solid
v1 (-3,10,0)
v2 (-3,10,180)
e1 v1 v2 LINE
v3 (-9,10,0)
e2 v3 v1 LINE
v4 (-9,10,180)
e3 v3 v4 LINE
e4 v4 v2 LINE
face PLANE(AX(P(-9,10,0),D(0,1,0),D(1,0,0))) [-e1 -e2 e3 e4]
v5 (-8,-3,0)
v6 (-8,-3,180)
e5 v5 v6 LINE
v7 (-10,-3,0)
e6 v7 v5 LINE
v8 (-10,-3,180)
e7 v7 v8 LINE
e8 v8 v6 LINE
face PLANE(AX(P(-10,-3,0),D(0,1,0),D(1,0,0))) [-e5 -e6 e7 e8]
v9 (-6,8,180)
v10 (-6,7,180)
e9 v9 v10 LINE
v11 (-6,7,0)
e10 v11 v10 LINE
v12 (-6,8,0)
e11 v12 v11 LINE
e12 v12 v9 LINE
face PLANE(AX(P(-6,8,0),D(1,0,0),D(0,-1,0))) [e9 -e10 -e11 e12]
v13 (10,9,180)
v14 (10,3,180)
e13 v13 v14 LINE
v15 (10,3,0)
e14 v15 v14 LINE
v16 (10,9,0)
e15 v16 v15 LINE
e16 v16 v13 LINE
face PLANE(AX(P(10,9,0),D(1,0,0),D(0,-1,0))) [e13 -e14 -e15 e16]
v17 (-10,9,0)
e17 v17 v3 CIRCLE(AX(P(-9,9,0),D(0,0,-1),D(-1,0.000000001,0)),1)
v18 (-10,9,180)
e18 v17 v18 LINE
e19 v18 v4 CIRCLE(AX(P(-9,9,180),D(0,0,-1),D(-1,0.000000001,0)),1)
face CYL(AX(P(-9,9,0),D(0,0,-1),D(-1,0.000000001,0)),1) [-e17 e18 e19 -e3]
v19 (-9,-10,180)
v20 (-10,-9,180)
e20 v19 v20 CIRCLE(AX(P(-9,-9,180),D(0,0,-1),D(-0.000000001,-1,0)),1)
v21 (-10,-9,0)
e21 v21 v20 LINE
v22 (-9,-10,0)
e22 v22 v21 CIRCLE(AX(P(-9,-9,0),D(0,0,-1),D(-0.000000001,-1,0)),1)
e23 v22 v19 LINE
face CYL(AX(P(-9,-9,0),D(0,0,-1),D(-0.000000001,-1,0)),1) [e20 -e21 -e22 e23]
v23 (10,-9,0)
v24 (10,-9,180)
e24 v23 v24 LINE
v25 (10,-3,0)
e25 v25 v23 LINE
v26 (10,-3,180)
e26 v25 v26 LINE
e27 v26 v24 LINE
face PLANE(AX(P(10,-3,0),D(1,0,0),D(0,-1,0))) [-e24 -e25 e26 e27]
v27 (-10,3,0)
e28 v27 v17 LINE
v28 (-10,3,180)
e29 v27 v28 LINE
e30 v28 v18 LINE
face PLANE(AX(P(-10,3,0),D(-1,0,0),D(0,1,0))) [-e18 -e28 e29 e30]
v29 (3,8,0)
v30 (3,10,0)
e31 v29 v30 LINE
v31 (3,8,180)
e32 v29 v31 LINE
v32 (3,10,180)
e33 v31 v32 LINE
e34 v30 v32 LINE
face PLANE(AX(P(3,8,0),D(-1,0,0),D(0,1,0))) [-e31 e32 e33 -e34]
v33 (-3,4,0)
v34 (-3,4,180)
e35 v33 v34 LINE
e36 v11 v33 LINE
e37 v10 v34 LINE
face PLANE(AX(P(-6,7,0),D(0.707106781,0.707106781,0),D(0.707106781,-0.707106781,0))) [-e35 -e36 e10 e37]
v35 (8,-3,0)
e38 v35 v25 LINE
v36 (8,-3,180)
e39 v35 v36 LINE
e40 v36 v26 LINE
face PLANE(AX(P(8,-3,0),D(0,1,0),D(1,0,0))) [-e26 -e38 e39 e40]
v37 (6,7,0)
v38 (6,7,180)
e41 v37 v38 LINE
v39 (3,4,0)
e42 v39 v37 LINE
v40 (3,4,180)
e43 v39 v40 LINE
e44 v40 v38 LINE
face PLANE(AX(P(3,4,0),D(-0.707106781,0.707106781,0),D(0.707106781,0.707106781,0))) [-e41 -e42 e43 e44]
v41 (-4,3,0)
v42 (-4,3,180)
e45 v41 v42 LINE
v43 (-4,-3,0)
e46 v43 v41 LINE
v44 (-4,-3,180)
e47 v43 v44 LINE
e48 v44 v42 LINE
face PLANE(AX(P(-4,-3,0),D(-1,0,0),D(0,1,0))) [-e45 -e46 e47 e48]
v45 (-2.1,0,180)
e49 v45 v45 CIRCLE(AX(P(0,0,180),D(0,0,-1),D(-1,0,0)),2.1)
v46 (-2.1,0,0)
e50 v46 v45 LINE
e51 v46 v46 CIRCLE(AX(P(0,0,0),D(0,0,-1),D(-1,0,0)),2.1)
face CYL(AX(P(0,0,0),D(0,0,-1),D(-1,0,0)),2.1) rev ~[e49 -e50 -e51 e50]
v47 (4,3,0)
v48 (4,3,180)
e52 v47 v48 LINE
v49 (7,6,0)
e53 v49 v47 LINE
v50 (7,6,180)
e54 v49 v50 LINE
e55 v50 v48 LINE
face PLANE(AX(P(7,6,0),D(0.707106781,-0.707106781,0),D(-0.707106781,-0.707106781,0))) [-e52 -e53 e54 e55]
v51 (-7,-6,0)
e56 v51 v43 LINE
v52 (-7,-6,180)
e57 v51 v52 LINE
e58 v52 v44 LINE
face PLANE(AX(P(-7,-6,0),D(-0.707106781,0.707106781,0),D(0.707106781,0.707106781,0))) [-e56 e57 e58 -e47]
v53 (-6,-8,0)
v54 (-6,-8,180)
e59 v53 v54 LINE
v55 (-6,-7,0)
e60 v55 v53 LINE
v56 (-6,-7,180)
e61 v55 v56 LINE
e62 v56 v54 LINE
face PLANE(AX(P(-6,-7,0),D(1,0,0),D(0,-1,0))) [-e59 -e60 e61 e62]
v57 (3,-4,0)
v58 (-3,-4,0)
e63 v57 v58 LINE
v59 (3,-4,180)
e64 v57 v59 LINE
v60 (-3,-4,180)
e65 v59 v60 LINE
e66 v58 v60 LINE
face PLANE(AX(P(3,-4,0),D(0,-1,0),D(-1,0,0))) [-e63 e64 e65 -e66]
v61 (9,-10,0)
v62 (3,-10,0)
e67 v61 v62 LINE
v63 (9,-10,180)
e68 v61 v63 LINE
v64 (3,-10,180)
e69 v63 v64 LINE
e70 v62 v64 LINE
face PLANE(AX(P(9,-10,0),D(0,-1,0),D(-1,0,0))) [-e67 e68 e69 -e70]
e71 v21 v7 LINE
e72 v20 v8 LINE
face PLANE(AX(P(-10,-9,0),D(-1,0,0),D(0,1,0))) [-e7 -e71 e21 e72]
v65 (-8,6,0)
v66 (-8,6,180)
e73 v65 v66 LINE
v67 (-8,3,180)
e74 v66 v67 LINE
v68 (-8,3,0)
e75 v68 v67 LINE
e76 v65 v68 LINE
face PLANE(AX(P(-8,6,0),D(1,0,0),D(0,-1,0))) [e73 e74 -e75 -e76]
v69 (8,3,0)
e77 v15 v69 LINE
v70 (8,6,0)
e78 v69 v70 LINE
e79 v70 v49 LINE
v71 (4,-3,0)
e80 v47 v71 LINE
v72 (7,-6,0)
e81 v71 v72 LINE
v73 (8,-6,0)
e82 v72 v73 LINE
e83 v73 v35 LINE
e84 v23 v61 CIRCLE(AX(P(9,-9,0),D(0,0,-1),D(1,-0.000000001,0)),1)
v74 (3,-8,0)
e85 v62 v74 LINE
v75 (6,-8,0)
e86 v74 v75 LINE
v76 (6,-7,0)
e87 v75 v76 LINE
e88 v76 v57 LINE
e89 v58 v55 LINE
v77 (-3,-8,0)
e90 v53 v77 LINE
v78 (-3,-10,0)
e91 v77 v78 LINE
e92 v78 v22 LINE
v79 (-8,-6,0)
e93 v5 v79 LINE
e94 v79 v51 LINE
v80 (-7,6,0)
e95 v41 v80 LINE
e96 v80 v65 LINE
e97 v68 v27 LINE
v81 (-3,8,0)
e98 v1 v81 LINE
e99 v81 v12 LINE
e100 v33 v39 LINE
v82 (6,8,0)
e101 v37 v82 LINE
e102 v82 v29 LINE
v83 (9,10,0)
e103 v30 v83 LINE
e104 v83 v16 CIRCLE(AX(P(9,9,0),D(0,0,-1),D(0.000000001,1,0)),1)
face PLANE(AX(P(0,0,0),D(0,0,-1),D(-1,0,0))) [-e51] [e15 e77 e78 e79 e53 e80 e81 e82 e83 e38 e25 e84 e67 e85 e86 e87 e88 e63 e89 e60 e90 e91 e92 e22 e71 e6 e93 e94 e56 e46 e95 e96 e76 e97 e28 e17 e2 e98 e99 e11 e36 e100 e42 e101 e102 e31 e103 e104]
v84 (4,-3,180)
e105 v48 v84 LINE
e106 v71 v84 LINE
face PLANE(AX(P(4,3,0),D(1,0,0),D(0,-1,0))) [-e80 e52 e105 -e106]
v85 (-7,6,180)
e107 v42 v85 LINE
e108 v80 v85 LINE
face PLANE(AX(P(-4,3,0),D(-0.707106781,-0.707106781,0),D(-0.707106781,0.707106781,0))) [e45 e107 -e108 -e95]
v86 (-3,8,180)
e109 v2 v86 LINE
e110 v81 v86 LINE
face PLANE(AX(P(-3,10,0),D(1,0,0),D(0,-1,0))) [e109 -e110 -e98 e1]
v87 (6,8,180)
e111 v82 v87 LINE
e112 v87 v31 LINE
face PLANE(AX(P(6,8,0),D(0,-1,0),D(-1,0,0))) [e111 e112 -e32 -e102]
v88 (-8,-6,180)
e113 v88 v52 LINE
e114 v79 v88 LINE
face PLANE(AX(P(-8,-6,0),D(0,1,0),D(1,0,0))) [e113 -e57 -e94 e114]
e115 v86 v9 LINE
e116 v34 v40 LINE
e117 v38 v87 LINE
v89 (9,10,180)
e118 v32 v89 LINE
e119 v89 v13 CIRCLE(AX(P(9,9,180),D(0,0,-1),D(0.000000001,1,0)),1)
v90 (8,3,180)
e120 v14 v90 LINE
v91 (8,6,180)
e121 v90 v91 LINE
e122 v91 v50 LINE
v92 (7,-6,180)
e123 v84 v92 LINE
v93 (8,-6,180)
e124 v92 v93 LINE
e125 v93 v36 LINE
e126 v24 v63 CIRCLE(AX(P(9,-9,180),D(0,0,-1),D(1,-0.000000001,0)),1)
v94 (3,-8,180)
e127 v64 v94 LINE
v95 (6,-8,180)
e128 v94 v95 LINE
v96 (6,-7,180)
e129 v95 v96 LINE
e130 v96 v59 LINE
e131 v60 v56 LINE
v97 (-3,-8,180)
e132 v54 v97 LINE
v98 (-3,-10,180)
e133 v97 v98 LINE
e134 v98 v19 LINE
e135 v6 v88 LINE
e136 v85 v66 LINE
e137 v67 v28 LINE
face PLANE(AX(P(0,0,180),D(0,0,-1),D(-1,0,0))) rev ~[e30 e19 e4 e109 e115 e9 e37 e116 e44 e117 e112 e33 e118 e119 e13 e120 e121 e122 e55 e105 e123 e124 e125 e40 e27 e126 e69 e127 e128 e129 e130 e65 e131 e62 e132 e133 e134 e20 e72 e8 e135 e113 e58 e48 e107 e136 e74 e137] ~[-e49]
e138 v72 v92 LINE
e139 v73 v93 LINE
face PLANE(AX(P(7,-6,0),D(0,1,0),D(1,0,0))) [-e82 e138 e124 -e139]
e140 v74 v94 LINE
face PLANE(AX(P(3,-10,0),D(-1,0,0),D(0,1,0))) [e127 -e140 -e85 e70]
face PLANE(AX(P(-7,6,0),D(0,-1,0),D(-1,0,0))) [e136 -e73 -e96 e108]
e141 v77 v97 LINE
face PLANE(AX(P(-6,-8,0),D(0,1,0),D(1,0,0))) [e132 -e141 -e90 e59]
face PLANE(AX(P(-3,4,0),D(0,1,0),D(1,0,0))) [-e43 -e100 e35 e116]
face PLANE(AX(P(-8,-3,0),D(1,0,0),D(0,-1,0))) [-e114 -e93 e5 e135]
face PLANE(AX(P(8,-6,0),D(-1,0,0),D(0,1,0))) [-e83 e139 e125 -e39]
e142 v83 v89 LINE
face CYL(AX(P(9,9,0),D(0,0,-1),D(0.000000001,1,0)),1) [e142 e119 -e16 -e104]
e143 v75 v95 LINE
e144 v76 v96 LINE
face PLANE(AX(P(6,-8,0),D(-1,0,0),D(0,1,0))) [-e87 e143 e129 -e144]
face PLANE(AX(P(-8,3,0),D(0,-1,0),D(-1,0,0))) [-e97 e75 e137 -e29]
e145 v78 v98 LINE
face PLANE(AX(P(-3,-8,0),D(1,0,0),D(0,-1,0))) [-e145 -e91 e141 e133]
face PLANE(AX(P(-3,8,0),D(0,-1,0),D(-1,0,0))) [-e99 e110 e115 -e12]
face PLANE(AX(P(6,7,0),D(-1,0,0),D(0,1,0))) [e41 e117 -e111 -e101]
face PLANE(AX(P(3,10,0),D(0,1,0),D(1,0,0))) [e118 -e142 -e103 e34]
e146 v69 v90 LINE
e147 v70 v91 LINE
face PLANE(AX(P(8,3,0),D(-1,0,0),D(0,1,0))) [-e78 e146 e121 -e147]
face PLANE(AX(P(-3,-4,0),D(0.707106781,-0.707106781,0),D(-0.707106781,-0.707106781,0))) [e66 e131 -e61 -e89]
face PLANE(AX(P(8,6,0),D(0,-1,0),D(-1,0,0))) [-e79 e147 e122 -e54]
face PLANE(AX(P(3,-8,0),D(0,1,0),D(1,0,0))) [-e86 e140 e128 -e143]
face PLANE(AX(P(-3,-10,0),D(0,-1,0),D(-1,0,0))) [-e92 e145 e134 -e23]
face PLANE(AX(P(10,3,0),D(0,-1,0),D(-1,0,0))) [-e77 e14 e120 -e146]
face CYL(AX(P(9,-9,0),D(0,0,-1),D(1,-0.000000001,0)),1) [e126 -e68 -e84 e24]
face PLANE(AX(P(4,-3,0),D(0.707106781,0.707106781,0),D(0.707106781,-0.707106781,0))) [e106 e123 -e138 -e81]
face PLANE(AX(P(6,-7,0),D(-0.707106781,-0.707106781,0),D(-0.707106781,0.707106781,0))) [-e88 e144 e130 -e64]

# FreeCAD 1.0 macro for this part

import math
import FreeCAD as App
import Part
import Sketcher

V = App.Vector
Q = App.Units.Quantity

doc = App.newDocument("Part")
body = doc.addObject("PartDesign::Body", "Body")

# Sketch on XY plane
sketch1 = body.newObject("Sketcher::SketchObject", "Sketch")
sketch1.AttachmentSupport = (doc.getObject("XY_Plane"), [""])
sketch1.MapMode = "FlatFace"
sketch1.addGeometry(Part.LineSegment(V(-6, -8, 0), V(-3, -8, 0)), False)
sketch1.addGeometry(Part.LineSegment(V(-3, -8, 0), V(-3, -10, 0)), False)
sketch1.addGeometry(Part.LineSegment(V(-3, -10, 0), V(-9, -10, 0)), False)
sketch1.addGeometry(Part.ArcOfCircle(Part.Circle(V(-9, -9, 0), V(0, 0, 1), 1), math.radians(-180), math.radians(-90)), False)
sketch1.addGeometry(Part.LineSegment(V(-10, -9, 0), V(-10, -3, 0)), False)
sketch1.addGeometry(Part.LineSegment(V(-10, -3, 0), V(-8, -3, 0)), False)
sketch1.addGeometry(Part.LineSegment(V(-8, -3, 0), V(-8, -6, 0)), False)
sketch1.addGeometry(Part.LineSegment(V(-8, -6, 0), V(-7, -6, 0)), False)
sketch1.addGeometry(Part.LineSegment(V(-7, -6, 0), V(-4, -3, 0)), False)
sketch1.addGeometry(Part.LineSegment(V(-4, -3, 0), V(-4, 3, 0)), False)
sketch1.addGeometry(Part.LineSegment(V(-4, 3, 0), V(-7, 6, 0)), False)
sketch1.addGeometry(Part.LineSegment(V(-7, 6, 0), V(-8, 6, 0)), False)
sketch1.addGeometry(Part.LineSegment(V(-8, 6, 0), V(-8, 3, 0)), False)
sketch1.addGeometry(Part.LineSegment(V(-8, 3, 0), V(-10, 3, 0)), False)
sketch1.addGeometry(Part.LineSegment(V(-10, 3, 0), V(-10, 9, 0)), False)
sketch1.addGeometry(Part.ArcOfCircle(Part.Circle(V(-9, 9, 0), V(0, 0, 1), 1), math.radians(90), math.radians(180)), False)
sketch1.addGeometry(Part.LineSegment(V(-9, 10, 0), V(-3, 10, 0)), False)
sketch1.addGeometry(Part.LineSegment(V(-3, 10, 0), V(-3, 8, 0)), False)
sketch1.addGeometry(Part.LineSegment(V(-3, 8, 0), V(-6, 8, 0)), False)
sketch1.addGeometry(Part.LineSegment(V(-6, 8, 0), V(-6, 7, 0)), False)
sketch1.addGeometry(Part.LineSegment(V(-6, 7, 0), V(-3, 4, 0)), False)
sketch1.addGeometry(Part.LineSegment(V(-3, 4, 0), V(3, 4, 0)), False)
sketch1.addGeometry(Part.LineSegment(V(3, 4, 0), V(6, 7, 0)), False)
sketch1.addGeometry(Part.LineSegment(V(6, 7, 0), V(6, 8, 0)), False)
sketch1.addGeometry(Part.LineSegment(V(6, 8, 0), V(3, 8, 0)), False)
sketch1.addGeometry(Part.LineSegment(V(3, 8, 0), V(3, 10, 0)), False)
sketch1.addGeometry(Part.LineSegment(V(3, 10, 0), V(9, 10, 0)), False)
sketch1.addGeometry(Part.ArcOfCircle(Part.Circle(V(9, 9, 0), V(0, 0, 1), 1), math.radians(0), math.radians(90)), False)
sketch1.addGeometry(Part.LineSegment(V(10, 9, 0), V(10, 3, 0)), False)
sketch1.addGeometry(Part.LineSegment(V(10, 3, 0), V(8, 3, 0)), False)
sketch1.addGeometry(Part.LineSegment(V(8, 3, 0), V(8, 6, 0)), False)
sketch1.addGeometry(Part.LineSegment(V(8, 6, 0), V(7, 6, 0)), False)
sketch1.addGeometry(Part.LineSegment(V(7, 6, 0), V(4, 3, 0)), False)
sketch1.addGeometry(Part.LineSegment(V(4, 3, 0), V(4, -3, 0)), False)
sketch1.addGeometry(Part.LineSegment(V(4, -3, 0), V(7, -6, 0)), False)
sketch1.addGeometry(Part.LineSegment(V(7, -6, 0), V(8, -6, 0)), False)
sketch1.addGeometry(Part.LineSegment(V(8, -6, 0), V(8, -3, 0)), False)
sketch1.addGeometry(Part.LineSegment(V(8, -3, 0), V(10, -3, 0)), False)
sketch1.addGeometry(Part.LineSegment(V(10, -3, 0), V(10, -9, 0)), False)
sketch1.addGeometry(Part.ArcOfCircle(Part.Circle(V(9, -9, 0), V(0, 0, 1), 1), math.radians(-90), math.radians(0)), False)
sketch1.addGeometry(Part.LineSegment(V(9, -10, 0), V(3, -10, 0)), False)
sketch1.addGeometry(Part.LineSegment(V(3, -10, 0), V(3, -8, 0)), False)
sketch1.addGeometry(Part.LineSegment(V(3, -8, 0), V(6, -8, 0)), False)
sketch1.addGeometry(Part.LineSegment(V(6, -8, 0), V(6, -7, 0)), False)
sketch1.addGeometry(Part.LineSegment(V(6, -7, 0), V(3, -4, 0)), False)
sketch1.addGeometry(Part.LineSegment(V(3, -4, 0), V(-3, -4, 0)), False)
sketch1.addGeometry(Part.LineSegment(V(-3, -4, 0), V(-6, -7, 0)), False)
sketch1.addGeometry(Part.LineSegment(V(-6, -7, 0), V(-6, -8, 0)), False)
sketch1.addGeometry(Part.Circle(V(0, 0, 0), V(0, 0, 1), 2.1), False)
sketch1.addConstraint(Sketcher.Constraint("Coincident", 0, 2, 1, 1))
sketch1.addConstraint(Sketcher.Constraint("Coincident", 1, 2, 2, 1))
sketch1.addConstraint(Sketcher.Constraint("Tangent", 2, 2, 3, 2))
sketch1.addConstraint(Sketcher.Constraint("Tangent", 3, 1, 4, 1))
sketch1.addConstraint(Sketcher.Constraint("Coincident", 4, 2, 5, 1))
sketch1.addConstraint(Sketcher.Constraint("Coincident", 5, 2, 6, 1))
sketch1.addConstraint(Sketcher.Constraint("Coincident", 6, 2, 7, 1))
sketch1.addConstraint(Sketcher.Constraint("Coincident", 7, 2, 8, 1))
sketch1.addConstraint(Sketcher.Constraint("Coincident", 8, 2, 9, 1))
sketch1.addConstraint(Sketcher.Constraint("Coincident", 9, 2, 10, 1))
sketch1.addConstraint(Sketcher.Constraint("Coincident", 10, 2, 11, 1))
sketch1.addConstraint(Sketcher.Constraint("Coincident", 11, 2, 12, 1))
sketch1.addConstraint(Sketcher.Constraint("Coincident", 12, 2, 13, 1))
sketch1.addConstraint(Sketcher.Constraint("Coincident", 13, 2, 14, 1))
sketch1.addConstraint(Sketcher.Constraint("Tangent", 14, 2, 15, 2))
sketch1.addConstraint(Sketcher.Constraint("Tangent", 15, 1, 16, 1))
sketch1.addConstraint(Sketcher.Constraint("Coincident", 16, 2, 17, 1))
sketch1.addConstraint(Sketcher.Constraint("Coincident", 17, 2, 18, 1))
sketch1.addConstraint(Sketcher.Constraint("Coincident", 18, 2, 19, 1))
sketch1.addConstraint(Sketcher.Constraint("Coincident", 19, 2, 20, 1))
sketch1.addConstraint(Sketcher.Constraint("Coincident", 20, 2, 21, 1))
sketch1.addConstraint(Sketcher.Constraint("Coincident", 21, 2, 22, 1))
sketch1.addConstraint(Sketcher.Constraint("Coincident", 22, 2, 23, 1))
sketch1.addConstraint(Sketcher.Constraint("Coincident", 23, 2, 24, 1))
sketch1.addConstraint(Sketcher.Constraint("Coincident", 24, 2, 25, 1))
sketch1.addConstraint(Sketcher.Constraint("Coincident", 25, 2, 26, 1))
sketch1.addConstraint(Sketcher.Constraint("Tangent", 26, 2, 27, 2))
sketch1.addConstraint(Sketcher.Constraint("Tangent", 27, 1, 28, 1))
sketch1.addConstraint(Sketcher.Constraint("Coincident", 28, 2, 29, 1))
sketch1.addConstraint(Sketcher.Constraint("Coincident", 29, 2, 30, 1))
sketch1.addConstraint(Sketcher.Constraint("Coincident", 30, 2, 31, 1))
sketch1.addConstraint(Sketcher.Constraint("Coincident", 31, 2, 32, 1))
sketch1.addConstraint(Sketcher.Constraint("Coincident", 32, 2, 33, 1))
sketch1.addConstraint(Sketcher.Constraint("Coincident", 33, 2, 34, 1))
sketch1.addConstraint(Sketcher.Constraint("Coincident", 34, 2, 35, 1))
sketch1.addConstraint(Sketcher.Constraint("Coincident", 35, 2, 36, 1))
sketch1.addConstraint(Sketcher.Constraint("Coincident", 36, 2, 37, 1))
sketch1.addConstraint(Sketcher.Constraint("Coincident", 37, 2, 38, 1))
sketch1.addConstraint(Sketcher.Constraint("Tangent", 38, 2, 39, 2))
sketch1.addConstraint(Sketcher.Constraint("Tangent", 39, 1, 40, 1))
sketch1.addConstraint(Sketcher.Constraint("Coincident", 40, 2, 41, 1))
sketch1.addConstraint(Sketcher.Constraint("Coincident", 41, 2, 42, 1))
sketch1.addConstraint(Sketcher.Constraint("Coincident", 42, 2, 43, 1))
sketch1.addConstraint(Sketcher.Constraint("Coincident", 43, 2, 44, 1))
sketch1.addConstraint(Sketcher.Constraint("Coincident", 44, 2, 45, 1))
sketch1.addConstraint(Sketcher.Constraint("Coincident", 45, 2, 46, 1))
sketch1.addConstraint(Sketcher.Constraint("Coincident", 46, 2, 47, 1))
sketch1.addConstraint(Sketcher.Constraint("Coincident", 47, 2, 0, 1))
sketch1.addConstraint(Sketcher.Constraint("Horizontal", 0))
sketch1.addConstraint(Sketcher.Constraint("Vertical", 1))
sketch1.addConstraint(Sketcher.Constraint("Horizontal", 2))
sketch1.addConstraint(Sketcher.Constraint("Vertical", 4))
sketch1.addConstraint(Sketcher.Constraint("Horizontal", 5))
sketch1.addConstraint(Sketcher.Constraint("Vertical", 6))
sketch1.addConstraint(Sketcher.Constraint("Horizontal", 7))
sketch1.addConstraint(Sketcher.Constraint("Vertical", 9))
sketch1.addConstraint(Sketcher.Constraint("Horizontal", 11))
sketch1.addConstraint(Sketcher.Constraint("Vertical", 12))
sketch1.addConstraint(Sketcher.Constraint("Horizontal", 13))
sketch1.addConstraint(Sketcher.Constraint("Vertical", 14))
sketch1.addConstraint(Sketcher.Constraint("Horizontal", 16))
sketch1.addConstraint(Sketcher.Constraint("Vertical", 17))
sketch1.addConstraint(Sketcher.Constraint("Horizontal", 18))
sketch1.addConstraint(Sketcher.Constraint("Vertical", 19))
sketch1.addConstraint(Sketcher.Constraint("Horizontal", 21))
sketch1.addConstraint(Sketcher.Constraint("Vertical", 23))
sketch1.addConstraint(Sketcher.Constraint("Horizontal", 24))
sketch1.addConstraint(Sketcher.Constraint("Vertical", 25))
sketch1.addConstraint(Sketcher.Constraint("Horizontal", 26))
sketch1.addConstraint(Sketcher.Constraint("Vertical", 28))
sketch1.addConstraint(Sketcher.Constraint("Horizontal", 29))
sketch1.addConstraint(Sketcher.Constraint("Vertical", 30))
sketch1.addConstraint(Sketcher.Constraint("Horizontal", 31))
sketch1.addConstraint(Sketcher.Constraint("Vertical", 33))
sketch1.addConstraint(Sketcher.Constraint("Horizontal", 35))
sketch1.addConstraint(Sketcher.Constraint("Vertical", 36))
sketch1.addConstraint(Sketcher.Constraint("Horizontal", 37))
sketch1.addConstraint(Sketcher.Constraint("Vertical", 38))
sketch1.addConstraint(Sketcher.Constraint("Horizontal", 40))
sketch1.addConstraint(Sketcher.Constraint("Vertical", 41))
sketch1.addConstraint(Sketcher.Constraint("Horizontal", 42))
sketch1.addConstraint(Sketcher.Constraint("Vertical", 43))
sketch1.addConstraint(Sketcher.Constraint("Horizontal", 45))
sketch1.addConstraint(Sketcher.Constraint("Vertical", 47))
sketch1.addConstraint(Sketcher.Constraint("Coincident", 48, 3, -1, 1))
sketch1.addConstraint(Sketcher.Constraint("Equal", 3, 15))
sketch1.addConstraint(Sketcher.Constraint("Equal", 15, 27))
sketch1.addConstraint(Sketcher.Constraint("Equal", 27, 39))
sketch1.addConstraint(Sketcher.Constraint("Symmetric", 3, 3, 27, 3, -1, 1))
sketch1.addConstraint(Sketcher.Constraint("Symmetric", 15, 3, 39, 3, -1, 1))
sketch1.addConstraint(Sketcher.Constraint("Symmetric", 0, 2, 24, 2, -1, 1))
sketch1.addConstraint(Sketcher.Constraint("Symmetric", 5, 2, 29, 2, -1, 1))
sketch1.addConstraint(Sketcher.Constraint("Symmetric", 7, 2, 31, 2, -1, 1))
sketch1.addConstraint(Sketcher.Constraint("Symmetric", 8, 2, 32, 2, -1, 1))
sketch1.addConstraint(Sketcher.Constraint("Symmetric", 10, 2, 34, 2, -1, 1))
sketch1.addConstraint(Sketcher.Constraint("Symmetric", 12, 2, 36, 2, -1, 1))
sketch1.addConstraint(Sketcher.Constraint("Symmetric", 17, 2, 41, 2, -1, 1))
sketch1.addConstraint(Sketcher.Constraint("Symmetric", 19, 2, 43, 2, -1, 1))
sketch1.addConstraint(Sketcher.Constraint("Symmetric", 20, 2, 44, 2, -1, 1))
sketch1.addConstraint(Sketcher.Constraint("Symmetric", 22, 2, 46, 2, -1, 1))
sketch1.addConstraint(Sketcher.Constraint("Symmetric", 15, 3, 27, 3, -2))
sketch1.addConstraint(Sketcher.Constraint("Symmetric", 19, 2, 22, 2, -2))
sketch1.addConstraint(Sketcher.Constraint("Symmetric", 17, 2, 24, 2, -2))
sketch1.addConstraint(Sketcher.Constraint("Symmetric", 12, 2, 29, 2, -2))
sketch1.addConstraint(Sketcher.Constraint("Symmetric", 10, 2, 31, 2, -2))
sketch1.addConstraint(Sketcher.Constraint("Perpendicular", 8, 10))
sketch1.addConstraint(Sketcher.Constraint("Parallel", 10, 20))
sketch1.addConstraint(Sketcher.Constraint("Perpendicular", 20, 22))
sketch1.addConstraint(Sketcher.Constraint("Perpendicular", 32, 34))
sketch1.addConstraint(Sketcher.Constraint("Perpendicular", 44, 46))
sketch1.addConstraint(Sketcher.Constraint("Horizontal", 5, 2, 8, 2))
sketch1.addConstraint(Sketcher.Constraint("Horizontal", 9, 2, 12, 2))
sketch1.addConstraint(Sketcher.Constraint("Vertical", 17, 2, 20, 2))
sketch1.addConstraint(Sketcher.Constraint("Equal", 16, 21))
sketch1.addConstraint(Sketcher.Constraint("Equal", 37, 1))
sketch1.addConstraint(Sketcher.Constraint("Equal", 45, 4))
sketch1.addConstraint(Sketcher.Constraint("Equal", 42, 6))
sketch1.addConstraint(Sketcher.Constraint("Equal", 4, 9))
sketch1.addConstraint(Sketcher.Constraint("Equal", 35, 19))
sketch1.addConstraint(Sketcher.Constraint("Radius", 3, Q("1 mm")))
sketch1.addConstraint(Sketcher.Constraint("Diameter", 48, Q("4.2 mm")))
sketch1.addConstraint(Sketcher.Constraint("DistanceX", 0, 1, 0, 2, Q("3 mm")))
sketch1.addConstraint(Sketcher.Constraint("DistanceX", 2, 2, 2, 1, Q("6 mm")))
sketch1.addConstraint(Sketcher.Constraint("DistanceX", 5, 1, 5, 2, Q("2 mm")))
sketch1.addConstraint(Sketcher.Constraint("DistanceX", 7, 1, 7, 2, Q("1 mm")))
pad1 = body.newObject("PartDesign::Pad", "Pad")
pad1.Profile = sketch1
pad1.Length = 180

doc.recompute()
